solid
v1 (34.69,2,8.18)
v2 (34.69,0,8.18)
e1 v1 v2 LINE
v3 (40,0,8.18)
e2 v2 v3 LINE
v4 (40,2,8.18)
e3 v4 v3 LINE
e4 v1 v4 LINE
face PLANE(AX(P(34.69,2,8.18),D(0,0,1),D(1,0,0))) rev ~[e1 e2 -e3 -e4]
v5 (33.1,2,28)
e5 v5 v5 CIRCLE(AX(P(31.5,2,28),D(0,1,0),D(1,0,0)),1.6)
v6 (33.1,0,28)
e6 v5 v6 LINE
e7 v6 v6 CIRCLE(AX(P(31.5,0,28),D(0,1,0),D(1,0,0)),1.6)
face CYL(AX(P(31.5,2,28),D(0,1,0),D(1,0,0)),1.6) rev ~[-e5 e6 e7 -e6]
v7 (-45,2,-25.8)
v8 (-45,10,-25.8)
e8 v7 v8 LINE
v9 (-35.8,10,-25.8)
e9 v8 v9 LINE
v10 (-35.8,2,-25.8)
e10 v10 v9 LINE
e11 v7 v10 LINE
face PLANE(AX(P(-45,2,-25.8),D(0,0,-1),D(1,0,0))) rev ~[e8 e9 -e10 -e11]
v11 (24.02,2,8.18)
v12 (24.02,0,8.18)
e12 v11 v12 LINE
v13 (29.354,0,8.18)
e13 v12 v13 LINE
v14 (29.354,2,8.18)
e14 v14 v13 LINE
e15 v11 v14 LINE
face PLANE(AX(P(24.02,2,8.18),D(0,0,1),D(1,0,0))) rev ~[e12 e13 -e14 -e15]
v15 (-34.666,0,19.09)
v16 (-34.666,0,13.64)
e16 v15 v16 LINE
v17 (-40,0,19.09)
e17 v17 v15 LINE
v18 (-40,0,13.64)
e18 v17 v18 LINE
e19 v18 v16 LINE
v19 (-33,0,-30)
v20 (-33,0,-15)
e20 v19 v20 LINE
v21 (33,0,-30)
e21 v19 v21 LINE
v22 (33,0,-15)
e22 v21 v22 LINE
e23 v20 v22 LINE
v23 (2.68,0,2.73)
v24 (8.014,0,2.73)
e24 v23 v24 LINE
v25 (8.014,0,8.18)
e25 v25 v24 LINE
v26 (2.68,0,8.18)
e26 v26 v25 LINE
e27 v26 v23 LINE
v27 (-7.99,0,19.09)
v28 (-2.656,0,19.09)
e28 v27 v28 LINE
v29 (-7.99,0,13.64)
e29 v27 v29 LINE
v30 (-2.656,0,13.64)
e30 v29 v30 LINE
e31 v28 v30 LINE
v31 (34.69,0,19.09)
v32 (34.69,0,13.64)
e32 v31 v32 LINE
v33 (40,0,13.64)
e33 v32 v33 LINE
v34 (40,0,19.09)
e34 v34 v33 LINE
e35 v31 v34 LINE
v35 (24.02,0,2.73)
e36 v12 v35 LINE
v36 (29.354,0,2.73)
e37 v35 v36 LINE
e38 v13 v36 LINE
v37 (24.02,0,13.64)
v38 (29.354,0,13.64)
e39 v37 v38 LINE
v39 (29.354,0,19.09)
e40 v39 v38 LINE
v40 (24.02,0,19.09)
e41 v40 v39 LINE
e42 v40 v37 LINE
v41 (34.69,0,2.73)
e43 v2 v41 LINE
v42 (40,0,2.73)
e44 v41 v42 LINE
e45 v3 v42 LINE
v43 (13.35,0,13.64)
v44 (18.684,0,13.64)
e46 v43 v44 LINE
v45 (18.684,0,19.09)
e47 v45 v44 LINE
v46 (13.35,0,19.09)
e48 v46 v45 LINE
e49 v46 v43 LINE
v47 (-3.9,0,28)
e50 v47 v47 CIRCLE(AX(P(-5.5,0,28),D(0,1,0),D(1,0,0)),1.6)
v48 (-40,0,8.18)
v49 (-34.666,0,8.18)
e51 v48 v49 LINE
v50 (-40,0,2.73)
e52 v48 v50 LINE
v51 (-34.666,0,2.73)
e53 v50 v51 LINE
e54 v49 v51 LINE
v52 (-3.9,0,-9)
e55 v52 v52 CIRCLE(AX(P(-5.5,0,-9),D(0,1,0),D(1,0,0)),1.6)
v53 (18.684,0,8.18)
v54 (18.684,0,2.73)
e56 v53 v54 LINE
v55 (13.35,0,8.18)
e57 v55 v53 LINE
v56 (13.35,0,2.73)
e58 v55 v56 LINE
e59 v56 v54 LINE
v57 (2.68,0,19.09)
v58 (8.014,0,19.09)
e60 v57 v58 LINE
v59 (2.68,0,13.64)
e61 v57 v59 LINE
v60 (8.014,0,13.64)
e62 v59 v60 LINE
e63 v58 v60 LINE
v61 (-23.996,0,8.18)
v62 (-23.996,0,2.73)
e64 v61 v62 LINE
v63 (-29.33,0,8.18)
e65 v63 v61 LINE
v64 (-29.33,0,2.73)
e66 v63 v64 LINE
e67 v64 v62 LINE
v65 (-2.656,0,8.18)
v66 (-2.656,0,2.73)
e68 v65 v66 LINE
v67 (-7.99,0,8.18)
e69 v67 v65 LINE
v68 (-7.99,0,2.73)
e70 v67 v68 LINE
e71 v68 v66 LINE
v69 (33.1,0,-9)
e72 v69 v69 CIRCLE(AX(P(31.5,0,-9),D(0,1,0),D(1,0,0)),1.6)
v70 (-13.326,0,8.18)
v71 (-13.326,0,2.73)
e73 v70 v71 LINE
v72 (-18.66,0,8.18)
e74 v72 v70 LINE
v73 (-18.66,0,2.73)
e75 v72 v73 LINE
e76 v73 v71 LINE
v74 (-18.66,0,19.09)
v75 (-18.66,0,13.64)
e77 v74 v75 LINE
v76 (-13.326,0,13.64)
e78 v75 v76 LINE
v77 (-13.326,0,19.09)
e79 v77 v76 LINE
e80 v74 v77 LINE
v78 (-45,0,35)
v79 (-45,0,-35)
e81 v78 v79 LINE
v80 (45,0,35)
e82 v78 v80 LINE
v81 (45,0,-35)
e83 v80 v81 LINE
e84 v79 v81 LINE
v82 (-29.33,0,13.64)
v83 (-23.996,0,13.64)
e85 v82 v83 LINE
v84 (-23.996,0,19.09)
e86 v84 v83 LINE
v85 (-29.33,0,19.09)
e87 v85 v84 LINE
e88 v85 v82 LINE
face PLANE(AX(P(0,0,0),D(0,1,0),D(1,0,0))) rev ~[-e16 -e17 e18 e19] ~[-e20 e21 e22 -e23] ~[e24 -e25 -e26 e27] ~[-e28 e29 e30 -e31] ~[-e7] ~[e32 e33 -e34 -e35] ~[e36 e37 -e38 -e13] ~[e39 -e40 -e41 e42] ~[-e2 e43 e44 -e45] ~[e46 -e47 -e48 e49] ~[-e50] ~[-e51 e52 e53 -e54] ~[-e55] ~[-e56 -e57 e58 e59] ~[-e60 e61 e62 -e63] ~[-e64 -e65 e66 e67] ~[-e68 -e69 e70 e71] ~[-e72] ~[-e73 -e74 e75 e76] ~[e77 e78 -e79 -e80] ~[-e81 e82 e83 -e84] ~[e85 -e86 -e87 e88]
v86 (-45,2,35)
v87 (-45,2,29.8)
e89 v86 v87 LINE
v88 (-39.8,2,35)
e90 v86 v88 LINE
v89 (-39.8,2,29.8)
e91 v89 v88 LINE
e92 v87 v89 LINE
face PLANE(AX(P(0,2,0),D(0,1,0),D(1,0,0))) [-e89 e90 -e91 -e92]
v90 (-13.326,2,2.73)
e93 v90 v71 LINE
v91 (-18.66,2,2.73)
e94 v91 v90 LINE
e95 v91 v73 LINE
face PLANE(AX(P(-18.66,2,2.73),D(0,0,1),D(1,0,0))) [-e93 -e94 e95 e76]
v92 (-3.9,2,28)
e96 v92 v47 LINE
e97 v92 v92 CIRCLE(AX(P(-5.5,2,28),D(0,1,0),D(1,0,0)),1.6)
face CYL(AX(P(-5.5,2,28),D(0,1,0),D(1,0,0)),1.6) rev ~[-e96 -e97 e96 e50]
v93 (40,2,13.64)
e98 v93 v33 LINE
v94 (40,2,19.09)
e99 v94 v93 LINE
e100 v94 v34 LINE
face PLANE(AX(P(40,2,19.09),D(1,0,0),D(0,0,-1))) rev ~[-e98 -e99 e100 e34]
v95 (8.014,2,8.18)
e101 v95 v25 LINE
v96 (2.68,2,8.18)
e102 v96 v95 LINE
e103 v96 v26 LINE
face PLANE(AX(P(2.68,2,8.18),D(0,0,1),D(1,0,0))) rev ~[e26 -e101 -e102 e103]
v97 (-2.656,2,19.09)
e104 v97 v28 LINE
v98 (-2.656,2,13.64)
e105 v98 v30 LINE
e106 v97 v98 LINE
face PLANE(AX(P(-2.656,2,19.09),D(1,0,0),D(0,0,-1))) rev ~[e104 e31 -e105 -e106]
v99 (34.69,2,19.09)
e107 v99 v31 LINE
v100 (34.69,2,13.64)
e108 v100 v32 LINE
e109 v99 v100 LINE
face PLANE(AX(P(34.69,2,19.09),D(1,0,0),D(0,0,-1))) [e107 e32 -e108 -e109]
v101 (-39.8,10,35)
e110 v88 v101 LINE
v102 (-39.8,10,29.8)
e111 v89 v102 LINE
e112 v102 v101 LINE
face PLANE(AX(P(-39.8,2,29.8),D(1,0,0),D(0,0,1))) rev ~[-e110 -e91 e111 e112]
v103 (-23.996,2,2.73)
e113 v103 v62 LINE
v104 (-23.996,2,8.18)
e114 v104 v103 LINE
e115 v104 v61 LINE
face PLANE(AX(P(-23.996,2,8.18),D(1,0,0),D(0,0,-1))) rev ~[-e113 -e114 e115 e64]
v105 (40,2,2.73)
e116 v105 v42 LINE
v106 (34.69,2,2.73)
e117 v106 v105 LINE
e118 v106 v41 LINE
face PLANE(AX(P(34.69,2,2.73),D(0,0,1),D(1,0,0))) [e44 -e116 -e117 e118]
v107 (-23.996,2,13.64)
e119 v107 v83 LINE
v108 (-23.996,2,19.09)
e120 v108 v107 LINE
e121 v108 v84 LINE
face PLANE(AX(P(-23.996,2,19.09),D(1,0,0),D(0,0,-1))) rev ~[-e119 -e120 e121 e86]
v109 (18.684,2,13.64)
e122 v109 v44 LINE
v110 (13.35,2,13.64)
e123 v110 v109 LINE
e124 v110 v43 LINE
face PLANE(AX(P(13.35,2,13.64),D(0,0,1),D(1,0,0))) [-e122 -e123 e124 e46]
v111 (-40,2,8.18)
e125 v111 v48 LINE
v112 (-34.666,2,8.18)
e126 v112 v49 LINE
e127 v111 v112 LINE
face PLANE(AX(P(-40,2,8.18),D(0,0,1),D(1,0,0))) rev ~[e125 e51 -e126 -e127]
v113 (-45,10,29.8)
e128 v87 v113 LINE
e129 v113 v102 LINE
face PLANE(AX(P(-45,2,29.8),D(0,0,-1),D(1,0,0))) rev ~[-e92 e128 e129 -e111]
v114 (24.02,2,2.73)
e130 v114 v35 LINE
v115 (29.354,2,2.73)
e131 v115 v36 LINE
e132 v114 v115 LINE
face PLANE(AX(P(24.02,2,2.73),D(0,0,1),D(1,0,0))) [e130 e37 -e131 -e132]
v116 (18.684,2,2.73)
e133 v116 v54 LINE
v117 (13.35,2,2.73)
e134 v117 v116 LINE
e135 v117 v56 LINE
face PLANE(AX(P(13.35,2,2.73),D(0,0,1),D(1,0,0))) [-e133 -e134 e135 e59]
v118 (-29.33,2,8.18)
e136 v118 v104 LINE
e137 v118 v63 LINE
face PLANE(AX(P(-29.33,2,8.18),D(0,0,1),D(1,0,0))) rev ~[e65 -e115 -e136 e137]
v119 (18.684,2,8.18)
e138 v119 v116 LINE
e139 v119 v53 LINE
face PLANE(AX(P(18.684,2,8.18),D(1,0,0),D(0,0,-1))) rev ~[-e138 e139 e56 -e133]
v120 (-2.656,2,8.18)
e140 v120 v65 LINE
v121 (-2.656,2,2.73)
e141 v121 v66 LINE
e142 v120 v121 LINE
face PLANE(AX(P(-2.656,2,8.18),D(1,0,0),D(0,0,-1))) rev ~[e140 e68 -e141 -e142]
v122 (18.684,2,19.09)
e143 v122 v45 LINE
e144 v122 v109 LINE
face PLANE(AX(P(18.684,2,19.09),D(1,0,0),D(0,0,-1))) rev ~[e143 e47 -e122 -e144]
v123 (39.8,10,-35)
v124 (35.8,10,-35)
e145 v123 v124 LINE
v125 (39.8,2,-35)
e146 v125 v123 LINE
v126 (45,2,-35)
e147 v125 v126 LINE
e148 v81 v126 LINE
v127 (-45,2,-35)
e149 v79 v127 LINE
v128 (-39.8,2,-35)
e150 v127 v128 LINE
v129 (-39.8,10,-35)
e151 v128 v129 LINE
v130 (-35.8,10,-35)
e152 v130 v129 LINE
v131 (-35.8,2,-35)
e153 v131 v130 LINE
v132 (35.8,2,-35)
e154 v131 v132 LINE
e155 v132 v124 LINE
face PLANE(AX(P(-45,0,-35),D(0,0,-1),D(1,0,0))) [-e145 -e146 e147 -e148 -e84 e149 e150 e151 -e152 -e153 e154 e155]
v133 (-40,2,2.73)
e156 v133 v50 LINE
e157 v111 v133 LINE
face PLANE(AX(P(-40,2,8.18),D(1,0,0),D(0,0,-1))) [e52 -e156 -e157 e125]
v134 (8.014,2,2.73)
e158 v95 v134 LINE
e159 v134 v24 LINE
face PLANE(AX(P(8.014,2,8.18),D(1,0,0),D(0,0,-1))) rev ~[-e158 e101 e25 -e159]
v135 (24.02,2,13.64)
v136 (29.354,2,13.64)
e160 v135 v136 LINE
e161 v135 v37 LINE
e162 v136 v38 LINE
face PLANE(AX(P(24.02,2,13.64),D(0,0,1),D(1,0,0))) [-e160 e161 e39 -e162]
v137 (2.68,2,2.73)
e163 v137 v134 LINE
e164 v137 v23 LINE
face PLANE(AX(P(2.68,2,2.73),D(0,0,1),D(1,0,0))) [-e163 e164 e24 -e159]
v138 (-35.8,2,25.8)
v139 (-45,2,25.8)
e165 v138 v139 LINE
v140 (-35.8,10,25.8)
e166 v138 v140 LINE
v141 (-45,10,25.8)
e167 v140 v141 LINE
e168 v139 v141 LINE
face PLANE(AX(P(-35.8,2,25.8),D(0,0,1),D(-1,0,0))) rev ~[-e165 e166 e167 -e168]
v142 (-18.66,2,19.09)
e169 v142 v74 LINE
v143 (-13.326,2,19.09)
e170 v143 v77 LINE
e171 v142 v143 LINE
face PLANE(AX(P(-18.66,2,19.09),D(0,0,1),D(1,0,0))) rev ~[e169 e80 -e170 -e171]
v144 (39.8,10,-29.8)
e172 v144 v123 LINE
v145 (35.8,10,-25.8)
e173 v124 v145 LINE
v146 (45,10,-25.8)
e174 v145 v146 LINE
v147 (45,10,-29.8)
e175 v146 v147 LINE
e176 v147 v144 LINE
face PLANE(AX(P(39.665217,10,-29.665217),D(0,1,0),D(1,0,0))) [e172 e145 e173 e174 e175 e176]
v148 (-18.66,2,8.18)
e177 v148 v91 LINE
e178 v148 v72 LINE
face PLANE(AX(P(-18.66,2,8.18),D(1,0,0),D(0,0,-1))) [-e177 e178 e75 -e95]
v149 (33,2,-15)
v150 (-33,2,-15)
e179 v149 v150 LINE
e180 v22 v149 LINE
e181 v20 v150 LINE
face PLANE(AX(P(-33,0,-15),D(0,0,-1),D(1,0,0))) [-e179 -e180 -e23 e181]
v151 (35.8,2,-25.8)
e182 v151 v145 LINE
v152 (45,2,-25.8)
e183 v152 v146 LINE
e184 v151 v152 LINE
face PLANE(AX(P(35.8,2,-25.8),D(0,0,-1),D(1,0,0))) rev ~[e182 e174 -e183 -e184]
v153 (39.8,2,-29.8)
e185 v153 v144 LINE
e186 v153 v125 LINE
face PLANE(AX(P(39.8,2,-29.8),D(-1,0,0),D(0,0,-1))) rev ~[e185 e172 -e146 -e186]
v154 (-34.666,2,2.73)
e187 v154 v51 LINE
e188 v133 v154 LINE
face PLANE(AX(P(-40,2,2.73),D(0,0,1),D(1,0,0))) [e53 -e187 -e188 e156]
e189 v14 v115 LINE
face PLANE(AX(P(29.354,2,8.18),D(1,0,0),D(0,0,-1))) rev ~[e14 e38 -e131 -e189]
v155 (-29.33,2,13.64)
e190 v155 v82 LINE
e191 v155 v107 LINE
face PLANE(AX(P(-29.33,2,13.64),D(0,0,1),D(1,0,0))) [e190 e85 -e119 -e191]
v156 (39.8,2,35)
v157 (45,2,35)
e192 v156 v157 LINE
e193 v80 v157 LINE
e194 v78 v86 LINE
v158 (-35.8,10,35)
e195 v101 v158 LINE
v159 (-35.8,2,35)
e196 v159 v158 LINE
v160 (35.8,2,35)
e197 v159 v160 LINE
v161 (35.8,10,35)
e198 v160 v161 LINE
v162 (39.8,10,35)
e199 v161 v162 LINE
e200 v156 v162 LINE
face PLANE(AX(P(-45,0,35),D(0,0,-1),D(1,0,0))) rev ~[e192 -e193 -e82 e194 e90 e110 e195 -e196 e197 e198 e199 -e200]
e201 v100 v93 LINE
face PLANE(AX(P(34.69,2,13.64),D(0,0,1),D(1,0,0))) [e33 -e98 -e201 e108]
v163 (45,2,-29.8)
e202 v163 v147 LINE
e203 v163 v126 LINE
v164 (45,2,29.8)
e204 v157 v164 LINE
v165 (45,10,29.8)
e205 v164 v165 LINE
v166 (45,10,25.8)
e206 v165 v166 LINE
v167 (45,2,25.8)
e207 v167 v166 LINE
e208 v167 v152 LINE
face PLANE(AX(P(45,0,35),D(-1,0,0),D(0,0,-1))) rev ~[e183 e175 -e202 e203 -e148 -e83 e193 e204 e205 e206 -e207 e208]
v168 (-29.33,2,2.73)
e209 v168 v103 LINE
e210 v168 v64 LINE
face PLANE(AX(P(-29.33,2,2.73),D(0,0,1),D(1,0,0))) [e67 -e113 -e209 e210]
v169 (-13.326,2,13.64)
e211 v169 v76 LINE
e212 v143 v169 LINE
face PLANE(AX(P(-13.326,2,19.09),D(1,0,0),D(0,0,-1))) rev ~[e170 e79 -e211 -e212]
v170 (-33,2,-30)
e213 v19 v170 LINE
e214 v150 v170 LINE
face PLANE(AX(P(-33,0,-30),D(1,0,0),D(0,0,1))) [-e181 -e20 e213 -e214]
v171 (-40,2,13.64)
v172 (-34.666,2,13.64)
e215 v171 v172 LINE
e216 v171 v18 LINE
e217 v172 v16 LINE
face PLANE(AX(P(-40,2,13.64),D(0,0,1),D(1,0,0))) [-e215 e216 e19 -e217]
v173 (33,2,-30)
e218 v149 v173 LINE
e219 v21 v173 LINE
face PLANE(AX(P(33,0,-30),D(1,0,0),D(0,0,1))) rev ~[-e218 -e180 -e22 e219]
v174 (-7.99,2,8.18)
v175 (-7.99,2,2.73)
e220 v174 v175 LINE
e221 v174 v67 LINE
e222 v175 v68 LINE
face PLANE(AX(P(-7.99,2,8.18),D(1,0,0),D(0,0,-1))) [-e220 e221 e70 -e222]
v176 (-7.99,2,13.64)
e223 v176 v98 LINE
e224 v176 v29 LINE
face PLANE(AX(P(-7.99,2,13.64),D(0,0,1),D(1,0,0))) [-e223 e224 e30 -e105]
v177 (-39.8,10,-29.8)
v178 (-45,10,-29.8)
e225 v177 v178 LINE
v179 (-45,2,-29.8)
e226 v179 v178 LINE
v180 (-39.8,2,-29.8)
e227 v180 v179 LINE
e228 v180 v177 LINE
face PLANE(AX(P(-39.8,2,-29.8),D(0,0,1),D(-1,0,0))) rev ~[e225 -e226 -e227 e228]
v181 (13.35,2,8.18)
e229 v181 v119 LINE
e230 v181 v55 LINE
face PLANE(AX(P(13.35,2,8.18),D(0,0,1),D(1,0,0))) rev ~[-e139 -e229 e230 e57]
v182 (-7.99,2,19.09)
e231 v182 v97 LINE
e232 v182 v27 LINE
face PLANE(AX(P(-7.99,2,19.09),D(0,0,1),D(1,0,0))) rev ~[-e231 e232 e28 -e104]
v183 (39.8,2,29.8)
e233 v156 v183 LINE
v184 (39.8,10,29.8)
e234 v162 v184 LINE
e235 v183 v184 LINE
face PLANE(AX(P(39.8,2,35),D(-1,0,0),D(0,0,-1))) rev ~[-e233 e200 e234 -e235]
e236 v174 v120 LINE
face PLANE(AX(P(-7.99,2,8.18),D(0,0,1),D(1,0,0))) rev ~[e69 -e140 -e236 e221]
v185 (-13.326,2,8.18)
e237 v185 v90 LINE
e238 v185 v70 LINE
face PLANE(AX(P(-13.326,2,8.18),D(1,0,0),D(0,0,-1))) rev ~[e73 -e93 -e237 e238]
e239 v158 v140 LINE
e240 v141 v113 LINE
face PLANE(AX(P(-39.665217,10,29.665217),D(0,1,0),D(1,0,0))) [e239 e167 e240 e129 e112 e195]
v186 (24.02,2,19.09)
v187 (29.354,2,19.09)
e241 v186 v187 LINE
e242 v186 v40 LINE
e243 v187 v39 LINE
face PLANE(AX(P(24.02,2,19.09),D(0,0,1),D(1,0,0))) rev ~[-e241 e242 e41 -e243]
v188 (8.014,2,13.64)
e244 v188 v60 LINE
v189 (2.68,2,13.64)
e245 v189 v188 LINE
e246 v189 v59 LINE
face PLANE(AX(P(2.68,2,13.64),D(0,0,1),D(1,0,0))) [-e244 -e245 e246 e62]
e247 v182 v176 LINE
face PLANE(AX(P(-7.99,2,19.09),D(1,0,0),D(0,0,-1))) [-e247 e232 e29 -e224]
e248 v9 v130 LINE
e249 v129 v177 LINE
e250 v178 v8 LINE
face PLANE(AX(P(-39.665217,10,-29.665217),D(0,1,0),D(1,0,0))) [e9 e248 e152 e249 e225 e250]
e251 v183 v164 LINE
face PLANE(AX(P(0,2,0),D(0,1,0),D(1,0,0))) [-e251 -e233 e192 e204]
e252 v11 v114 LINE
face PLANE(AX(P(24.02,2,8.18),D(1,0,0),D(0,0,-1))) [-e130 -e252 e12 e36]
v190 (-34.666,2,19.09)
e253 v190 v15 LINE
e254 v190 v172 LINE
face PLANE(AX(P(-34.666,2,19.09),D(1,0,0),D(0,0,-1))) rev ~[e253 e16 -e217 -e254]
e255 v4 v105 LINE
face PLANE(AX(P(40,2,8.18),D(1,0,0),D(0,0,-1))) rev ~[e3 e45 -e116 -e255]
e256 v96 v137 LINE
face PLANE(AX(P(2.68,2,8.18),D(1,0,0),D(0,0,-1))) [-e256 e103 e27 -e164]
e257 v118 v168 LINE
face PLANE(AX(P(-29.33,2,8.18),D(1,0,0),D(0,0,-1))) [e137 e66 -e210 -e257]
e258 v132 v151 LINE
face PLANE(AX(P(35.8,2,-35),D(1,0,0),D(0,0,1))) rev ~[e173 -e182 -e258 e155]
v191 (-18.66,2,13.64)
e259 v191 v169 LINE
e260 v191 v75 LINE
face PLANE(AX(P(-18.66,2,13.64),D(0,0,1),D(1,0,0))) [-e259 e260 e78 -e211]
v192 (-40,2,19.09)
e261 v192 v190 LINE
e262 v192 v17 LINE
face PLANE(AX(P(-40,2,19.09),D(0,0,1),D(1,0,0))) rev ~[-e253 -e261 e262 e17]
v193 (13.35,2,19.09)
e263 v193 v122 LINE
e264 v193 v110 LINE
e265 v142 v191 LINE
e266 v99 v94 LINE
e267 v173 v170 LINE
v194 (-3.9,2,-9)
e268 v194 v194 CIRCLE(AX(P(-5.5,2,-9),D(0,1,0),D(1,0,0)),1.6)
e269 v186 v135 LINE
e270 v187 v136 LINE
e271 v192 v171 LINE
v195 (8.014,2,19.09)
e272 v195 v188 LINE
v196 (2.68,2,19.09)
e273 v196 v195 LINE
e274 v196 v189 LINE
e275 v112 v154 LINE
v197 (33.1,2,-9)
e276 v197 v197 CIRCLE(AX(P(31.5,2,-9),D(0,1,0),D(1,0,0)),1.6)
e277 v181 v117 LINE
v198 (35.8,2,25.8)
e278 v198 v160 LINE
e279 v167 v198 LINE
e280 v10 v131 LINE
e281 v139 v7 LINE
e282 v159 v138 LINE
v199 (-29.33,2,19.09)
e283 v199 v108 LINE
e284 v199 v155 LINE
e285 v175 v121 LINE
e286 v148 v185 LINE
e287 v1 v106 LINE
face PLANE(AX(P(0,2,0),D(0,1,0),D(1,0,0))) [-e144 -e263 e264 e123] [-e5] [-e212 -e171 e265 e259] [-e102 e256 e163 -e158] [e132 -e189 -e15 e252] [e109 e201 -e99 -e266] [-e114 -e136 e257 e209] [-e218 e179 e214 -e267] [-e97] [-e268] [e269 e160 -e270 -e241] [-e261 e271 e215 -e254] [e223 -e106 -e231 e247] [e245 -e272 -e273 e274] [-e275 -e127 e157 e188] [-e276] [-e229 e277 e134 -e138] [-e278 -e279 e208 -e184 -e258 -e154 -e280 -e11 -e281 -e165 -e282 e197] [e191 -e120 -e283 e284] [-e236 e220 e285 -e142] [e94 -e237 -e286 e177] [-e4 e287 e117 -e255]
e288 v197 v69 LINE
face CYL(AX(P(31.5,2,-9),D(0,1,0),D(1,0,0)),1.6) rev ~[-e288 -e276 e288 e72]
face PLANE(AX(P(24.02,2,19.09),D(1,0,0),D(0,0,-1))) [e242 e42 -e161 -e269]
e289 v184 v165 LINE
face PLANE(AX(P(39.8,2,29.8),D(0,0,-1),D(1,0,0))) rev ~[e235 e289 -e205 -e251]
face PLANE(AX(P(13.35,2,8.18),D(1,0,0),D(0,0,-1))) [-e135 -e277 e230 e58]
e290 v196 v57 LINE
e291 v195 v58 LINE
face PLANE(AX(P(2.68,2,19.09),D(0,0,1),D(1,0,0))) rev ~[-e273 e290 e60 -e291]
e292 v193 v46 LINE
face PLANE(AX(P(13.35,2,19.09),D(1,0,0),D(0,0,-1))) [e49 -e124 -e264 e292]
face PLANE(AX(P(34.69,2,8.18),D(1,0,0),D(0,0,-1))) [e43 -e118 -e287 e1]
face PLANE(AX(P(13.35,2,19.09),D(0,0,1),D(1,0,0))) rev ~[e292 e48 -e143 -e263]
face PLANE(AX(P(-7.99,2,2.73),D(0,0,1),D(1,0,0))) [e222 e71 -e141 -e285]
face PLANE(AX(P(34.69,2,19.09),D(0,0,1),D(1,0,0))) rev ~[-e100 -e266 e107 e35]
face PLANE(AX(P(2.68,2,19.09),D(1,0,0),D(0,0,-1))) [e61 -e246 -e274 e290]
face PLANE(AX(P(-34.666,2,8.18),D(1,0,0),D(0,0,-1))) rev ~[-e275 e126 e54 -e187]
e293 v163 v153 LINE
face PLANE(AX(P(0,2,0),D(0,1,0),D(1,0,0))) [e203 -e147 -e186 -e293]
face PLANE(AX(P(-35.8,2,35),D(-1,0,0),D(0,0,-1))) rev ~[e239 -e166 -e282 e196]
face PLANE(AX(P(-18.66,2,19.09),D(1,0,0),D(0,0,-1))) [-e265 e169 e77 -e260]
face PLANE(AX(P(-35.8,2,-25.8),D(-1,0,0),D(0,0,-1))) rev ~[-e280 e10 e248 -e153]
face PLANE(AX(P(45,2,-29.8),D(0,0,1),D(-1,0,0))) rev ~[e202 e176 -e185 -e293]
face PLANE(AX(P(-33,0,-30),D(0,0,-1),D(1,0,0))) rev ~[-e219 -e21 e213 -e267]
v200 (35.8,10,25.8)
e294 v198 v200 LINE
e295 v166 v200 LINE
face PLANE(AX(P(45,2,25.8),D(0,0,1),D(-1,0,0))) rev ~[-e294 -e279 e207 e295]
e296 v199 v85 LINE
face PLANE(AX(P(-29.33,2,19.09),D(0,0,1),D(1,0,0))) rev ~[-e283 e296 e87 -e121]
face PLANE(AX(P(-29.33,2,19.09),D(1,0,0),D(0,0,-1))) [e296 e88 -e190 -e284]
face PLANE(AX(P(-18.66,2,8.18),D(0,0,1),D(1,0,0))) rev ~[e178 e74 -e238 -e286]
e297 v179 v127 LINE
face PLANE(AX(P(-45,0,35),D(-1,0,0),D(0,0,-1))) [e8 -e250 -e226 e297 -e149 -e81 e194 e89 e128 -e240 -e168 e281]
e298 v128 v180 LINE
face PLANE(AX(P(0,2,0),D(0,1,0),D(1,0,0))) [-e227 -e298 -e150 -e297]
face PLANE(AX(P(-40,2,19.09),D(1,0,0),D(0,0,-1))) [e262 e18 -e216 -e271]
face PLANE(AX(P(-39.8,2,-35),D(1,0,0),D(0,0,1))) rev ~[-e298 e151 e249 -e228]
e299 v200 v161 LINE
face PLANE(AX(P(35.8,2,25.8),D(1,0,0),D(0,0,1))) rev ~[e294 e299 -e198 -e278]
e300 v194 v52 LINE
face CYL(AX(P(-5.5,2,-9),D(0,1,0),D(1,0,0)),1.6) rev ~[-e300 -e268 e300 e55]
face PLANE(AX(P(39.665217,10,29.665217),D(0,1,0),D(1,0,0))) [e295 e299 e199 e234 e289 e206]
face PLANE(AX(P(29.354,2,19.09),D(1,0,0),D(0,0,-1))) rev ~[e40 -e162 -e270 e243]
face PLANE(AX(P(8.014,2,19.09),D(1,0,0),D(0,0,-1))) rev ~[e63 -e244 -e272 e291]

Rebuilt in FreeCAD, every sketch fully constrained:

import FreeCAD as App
import Part
import Sketcher

V = App.Vector

doc = App.newDocument("Part")
body = doc.addObject("PartDesign::Body", "Body")

sketch1 = doc.addObject("Sketcher::SketchObject", "Sketch")
body.addObject(sketch1)
sketch1.AttachmentSupport = (doc.XZ_Plane, [""])
sketch1.MapMode = "FlatFace"
sketch1.addGeometry(Part.LineSegment(V(-45, -35, 0), V(-45, 35, 0)), False)
sketch1.addGeometry(Part.LineSegment(V(-45, 35, 0), V(45, 35, 0)), False)
sketch1.addGeometry(Part.LineSegment(V(45, 35, 0), V(45, -35, 0)), False)
sketch1.addGeometry(Part.LineSegment(V(45, -35, 0), V(-45, -35, 0)), False)
sketch1.addConstraint(Sketcher.Constraint("Coincident", 0, 2, 1, 1))
sketch1.addConstraint(Sketcher.Constraint("Coincident", 1, 2, 2, 1))
sketch1.addConstraint(Sketcher.Constraint("Coincident", 2, 2, 3, 1))
sketch1.addConstraint(Sketcher.Constraint("Coincident", 3, 2, 0, 1))
sketch1.addConstraint(Sketcher.Constraint("Vertical", 0))
sketch1.addConstraint(Sketcher.Constraint("Horizontal", 1))
sketch1.addConstraint(Sketcher.Constraint("Vertical", 2))
sketch1.addConstraint(Sketcher.Constraint("Horizontal", 3))
sketch1.addConstraint(Sketcher.Constraint("Symmetric", 0, 2, 2, 2, -1, 1))
sketch1.addConstraint(Sketcher.Constraint("DistanceX", 1, 1, 1, 2, 90.0))
sketch1.addConstraint(Sketcher.Constraint("DistanceY", 0, 1, 0, 2, 70.0))
pad1 = doc.addObject("PartDesign::Pad", "Pad")
body.addObject(pad1)
pad1.Profile = sketch1
pad1.Length = 2
pad1.Reversed = True

sketch2 = doc.addObject("Sketcher::SketchObject", "Sketch001")
body.addObject(sketch2)
sketch2.AttachmentSupport = (doc.XZ_Plane, [""])
sketch2.MapMode = "FlatFace"
sketch2.AttachmentOffset = App.Placement(V(0, 0, -2), App.Rotation())
sketch2.addGeometry(Part.LineSegment(V(-35.8, 25.8, 0), V(-45, 25.8, 0)), False)
sketch2.addGeometry(Part.LineSegment(V(-45, 25.8, 0), V(-45, 29.8, 0)), False)
sketch2.addGeometry(Part.LineSegment(V(-45, 29.8, 0), V(-39.8, 29.8, 0)), False)
sketch2.addGeometry(Part.LineSegment(V(-39.8, 29.8, 0), V(-39.8, 35, 0)), False)
sketch2.addGeometry(Part.LineSegment(V(-39.8, 35, 0), V(-35.8, 35, 0)), False)
sketch2.addGeometry(Part.LineSegment(V(-35.8, 35, 0), V(-35.8, 25.8, 0)), False)
sketch2.addGeometry(Part.LineSegment(V(45, 29.8, 0), V(45, 25.8, 0)), False)
sketch2.addGeometry(Part.LineSegment(V(45, 25.8, 0), V(35.8, 25.8, 0)), False)
sketch2.addGeometry(Part.LineSegment(V(35.8, 25.8, 0), V(35.8, 35, 0)), False)
sketch2.addGeometry(Part.LineSegment(V(35.8, 35, 0), V(39.8, 35, 0)), False)
sketch2.addGeometry(Part.LineSegment(V(39.8, 35, 0), V(39.8, 29.8, 0)), False)
sketch2.addGeometry(Part.LineSegment(V(39.8, 29.8, 0), V(45, 29.8, 0)), False)
sketch2.addGeometry(Part.LineSegment(V(39.8, -35, 0), V(35.8, -35, 0)), False)
sketch2.addGeometry(Part.LineSegment(V(35.8, -35, 0), V(35.8, -25.8, 0)), False)
sketch2.addGeometry(Part.LineSegment(V(35.8, -25.8, 0), V(45, -25.8, 0)), False)
sketch2.addGeometry(Part.LineSegment(V(45, -25.8, 0), V(45, -29.8, 0)), False)
sketch2.addGeometry(Part.LineSegment(V(45, -29.8, 0), V(39.8, -29.8, 0)), False)
sketch2.addGeometry(Part.LineSegment(V(39.8, -29.8, 0), V(39.8, -35, 0)), False)
sketch2.addGeometry(Part.LineSegment(V(-35.8, -35, 0), V(-39.8, -35, 0)), False)
sketch2.addGeometry(Part.LineSegment(V(-39.8, -35, 0), V(-39.8, -29.8, 0)), False)
sketch2.addGeometry(Part.LineSegment(V(-39.8, -29.8, 0), V(-45, -29.8, 0)), False)
sketch2.addGeometry(Part.LineSegment(V(-45, -29.8, 0), V(-45, -25.8, 0)), False)
sketch2.addGeometry(Part.LineSegment(V(-45, -25.8, 0), V(-35.8, -25.8, 0)), False)
sketch2.addGeometry(Part.LineSegment(V(-35.8, -25.8, 0), V(-35.8, -35, 0)), False)
sketch2.addConstraint(Sketcher.Constraint("Coincident", 0, 2, 1, 1))
sketch2.addConstraint(Sketcher.Constraint("Coincident", 1, 2, 2, 1))
sketch2.addConstraint(Sketcher.Constraint("Coincident", 2, 2, 3, 1))
sketch2.addConstraint(Sketcher.Constraint("Coincident", 3, 2, 4, 1))
sketch2.addConstraint(Sketcher.Constraint("Coincident", 4, 2, 5, 1))
sketch2.addConstraint(Sketcher.Constraint("Coincident", 5, 2, 0, 1))
sketch2.addConstraint(Sketcher.Constraint("Coincident", 6, 2, 7, 1))
sketch2.addConstraint(Sketcher.Constraint("Coincident", 7, 2, 8, 1))
sketch2.addConstraint(Sketcher.Constraint("Coincident", 8, 2, 9, 1))
sketch2.addConstraint(Sketcher.Constraint("Coincident", 9, 2, 10, 1))
sketch2.addConstraint(Sketcher.Constraint("Coincident", 10, 2, 11, 1))
sketch2.addConstraint(Sketcher.Constraint("Coincident", 11, 2, 6, 1))
sketch2.addConstraint(Sketcher.Constraint("Coincident", 12, 2, 13, 1))
sketch2.addConstraint(Sketcher.Constraint("Coincident", 13, 2, 14, 1))
sketch2.addConstraint(Sketcher.Constraint("Coincident", 14, 2, 15, 1))
sketch2.addConstraint(Sketcher.Constraint("Coincident", 15, 2, 16, 1))
sketch2.addConstraint(Sketcher.Constraint("Coincident", 16, 2, 17, 1))
sketch2.addConstraint(Sketcher.Constraint("Coincident", 17, 2, 12, 1))
sketch2.addConstraint(Sketcher.Constraint("Coincident", 18, 2, 19, 1))
sketch2.addConstraint(Sketcher.Constraint("Coincident", 19, 2, 20, 1))
sketch2.addConstraint(Sketcher.Constraint("Coincident", 20, 2, 21, 1))
sketch2.addConstraint(Sketcher.Constraint("Coincident", 21, 2, 22, 1))
sketch2.addConstraint(Sketcher.Constraint("Coincident", 22, 2, 23, 1))
sketch2.addConstraint(Sketcher.Constraint("Coincident", 23, 2, 18, 1))
sketch2.addConstraint(Sketcher.Constraint("Horizontal", 0))
sketch2.addConstraint(Sketcher.Constraint("Vertical", 1))
sketch2.addConstraint(Sketcher.Constraint("Horizontal", 2))
sketch2.addConstraint(Sketcher.Constraint("Vertical", 3))
sketch2.addConstraint(Sketcher.Constraint("Horizontal", 4))
sketch2.addConstraint(Sketcher.Constraint("Vertical", 5))
sketch2.addConstraint(Sketcher.Constraint("Vertical", 6))
sketch2.addConstraint(Sketcher.Constraint("Horizontal", 7))
sketch2.addConstraint(Sketcher.Constraint("Vertical", 8))
sketch2.addConstraint(Sketcher.Constraint("Horizontal", 9))
sketch2.addConstraint(Sketcher.Constraint("Vertical", 10))
sketch2.addConstraint(Sketcher.Constraint("Horizontal", 11))
sketch2.addConstraint(Sketcher.Constraint("Horizontal", 12))
sketch2.addConstraint(Sketcher.Constraint("Vertical", 13))
sketch2.addConstraint(Sketcher.Constraint("Horizontal", 14))
sketch2.addConstraint(Sketcher.Constraint("Vertical", 15))
sketch2.addConstraint(Sketcher.Constraint("Horizontal", 16))
sketch2.addConstraint(Sketcher.Constraint("Vertical", 17))
sketch2.addConstraint(Sketcher.Constraint("Horizontal", 18))
sketch2.addConstraint(Sketcher.Constraint("Vertical", 19))
sketch2.addConstraint(Sketcher.Constraint("Horizontal", 20))
sketch2.addConstraint(Sketcher.Constraint("Vertical", 21))
sketch2.addConstraint(Sketcher.Constraint("Horizontal", 22))
sketch2.addConstraint(Sketcher.Constraint("Vertical", 23))
sketch2.addConstraint(Sketcher.Constraint("Symmetric", 4, 2, 12, 2, -1, 1))
sketch2.addConstraint(Sketcher.Constraint("Symmetric", 0, 2, 14, 2, -1, 1))
sketch2.addConstraint(Sketcher.Constraint("Symmetric", 2, 2, 16, 2, -1, 1))
sketch2.addConstraint(Sketcher.Constraint("Symmetric", 9, 2, 18, 2, -1, 1))
sketch2.addConstraint(Sketcher.Constraint("Symmetric", 11, 2, 20, 2, -1, 1))
sketch2.addConstraint(Sketcher.Constraint("Symmetric", 7, 2, 22, 2, -1, 1))
sketch2.addConstraint(Sketcher.Constraint("Symmetric", 0, 2, 6, 2, -2))
sketch2.addConstraint(Sketcher.Constraint("Symmetric", 4, 2, 8, 2, -2))
sketch2.addConstraint(Sketcher.Constraint("Symmetric", 2, 2, 10, 2, -2))
sketch2.addConstraint(Sketcher.Constraint("Equal", 18, 1))
sketch2.addConstraint(Sketcher.Constraint("Equal", 20, 3))
sketch2.addConstraint(Sketcher.Constraint("DistanceX", 4, 1, 4, 2, 4.0))
sketch2.addConstraint(Sketcher.Constraint("DistanceX", 0, 2, 0, 1, 9.2))
sketch2.addConstraint(Sketcher.Constraint("DistanceX", 0, 2, -1, 1, 45.0))
sketch2.addConstraint(Sketcher.Constraint("DistanceY", -1, 1, 3, 2, 35.0))
pad2 = doc.addObject("PartDesign::Pad", "Pad001")
body.addObject(pad2)
pad2.Profile = sketch2
pad2.Length = 8
pad2.Reversed = True

sketch3 = doc.addObject("Sketcher::SketchObject", "Sketch002")
body.addObject(sketch3)
sketch3.AttachmentSupport = (doc.XZ_Plane, [""])
sketch3.MapMode = "FlatFace"
sketch3.addGeometry(Part.LineSegment(V(-33, -15, 0), V(-33, -30, 0)), False)
sketch3.addGeometry(Part.LineSegment(V(-33, -30, 0), V(33, -30, 0)), False)
sketch3.addGeometry(Part.LineSegment(V(33, -30, 0), V(33, -15, 0)), False)
sketch3.addGeometry(Part.LineSegment(V(33, -15, 0), V(-33, -15, 0)), False)
sketch3.addConstraint(Sketcher.Constraint("Coincident", 0, 2, 1, 1))
sketch3.addConstraint(Sketcher.Constraint("Coincident", 1, 2, 2, 1))
sketch3.addConstraint(Sketcher.Constraint("Coincident", 2, 2, 3, 1))
sketch3.addConstraint(Sketcher.Constraint("Coincident", 3, 2, 0, 1))
sketch3.addConstraint(Sketcher.Constraint("Vertical", 0))
sketch3.addConstraint(Sketcher.Constraint("Horizontal", 1))
sketch3.addConstraint(Sketcher.Constraint("Vertical", 2))
sketch3.addConstraint(Sketcher.Constraint("Horizontal", 3))
sketch3.addConstraint(Sketcher.Constraint("DistanceX", 1, 1, 1, 2, 66.0))
sketch3.addConstraint(Sketcher.Constraint("DistanceY", 0, 2, 0, 1, 15.0))
sketch3.addConstraint(Sketcher.Constraint("DistanceX", 0, 2, -1, 1, 33.0))
sketch3.addConstraint(Sketcher.Constraint("DistanceY", 0, 2, -1, 1, 30.0))
pocket1 = doc.addObject("PartDesign::Pocket", "Pocket")
body.addObject(pocket1)
pocket1.Profile = sketch3
pocket1.Length = 3

sketch4 = doc.addObject("Sketcher::SketchObject", "Sketch003")
body.addObject(sketch4)
sketch4.AttachmentSupport = (doc.XZ_Plane, [""])
sketch4.MapMode = "FlatFace"
sketch4.AttachmentOffset = App.Placement(V(0, 0, -2), App.Rotation())
sketch4.addGeometry(Part.LineSegment(V(-40, 13.64, 0), V(-40, 19.09, 0)), False)
sketch4.addGeometry(Part.LineSegment(V(-40, 19.09, 0), V(-34.666, 19.09, 0)), False)
sketch4.addGeometry(Part.LineSegment(V(-34.666, 19.09, 0), V(-34.666, 13.64, 0)), False)
sketch4.addGeometry(Part.LineSegment(V(-34.666, 13.64, 0), V(-40, 13.64, 0)), False)
sketch4.addGeometry(Part.LineSegment(V(-40, 2.73, 0), V(-40, 8.18, 0)), False)
sketch4.addGeometry(Part.LineSegment(V(-40, 8.18, 0), V(-34.666, 8.18, 0)), False)
sketch4.addGeometry(Part.LineSegment(V(-34.666, 8.18, 0), V(-34.666, 2.73, 0)), False)
sketch4.addGeometry(Part.LineSegment(V(-34.666, 2.73, 0), V(-40, 2.73, 0)), False)
sketch4.addGeometry(Part.LineSegment(V(-29.33, 13.64, 0), V(-29.33, 19.09, 0)), False)
sketch4.addGeometry(Part.LineSegment(V(-29.33, 19.09, 0), V(-23.996, 19.09, 0)), False)
sketch4.addGeometry(Part.LineSegment(V(-23.996, 19.09, 0), V(-23.996, 13.64, 0)), False)
sketch4.addGeometry(Part.LineSegment(V(-23.996, 13.64, 0), V(-29.33, 13.64, 0)), False)
sketch4.addGeometry(Part.LineSegment(V(-29.33, 2.73, 0), V(-29.33, 8.18, 0)), False)
sketch4.addGeometry(Part.LineSegment(V(-29.33, 8.18, 0), V(-23.996, 8.18, 0)), False)
sketch4.addGeometry(Part.LineSegment(V(-23.996, 8.18, 0), V(-23.996, 2.73, 0)), False)
sketch4.addGeometry(Part.LineSegment(V(-23.996, 2.73, 0), V(-29.33, 2.73, 0)), False)
sketch4.addGeometry(Part.LineSegment(V(-18.66, 13.64, 0), V(-18.66, 19.09, 0)), False)
sketch4.addGeometry(Part.LineSegment(V(-18.66, 19.09, 0), V(-13.326, 19.09, 0)), False)
sketch4.addGeometry(Part.LineSegment(V(-13.326, 19.09, 0), V(-13.326, 13.64, 0)), False)
sketch4.addGeometry(Part.LineSegment(V(-13.326, 13.64, 0), V(-18.66, 13.64, 0)), False)
sketch4.addGeometry(Part.LineSegment(V(-18.66, 2.73, 0), V(-18.66, 8.18, 0)), False)
sketch4.addGeometry(Part.LineSegment(V(-18.66, 8.18, 0), V(-13.326, 8.18, 0)), False)
sketch4.addGeometry(Part.LineSegment(V(-13.326, 8.18, 0), V(-13.326, 2.73, 0)), False)
sketch4.addGeometry(Part.LineSegment(V(-13.326, 2.73, 0), V(-18.66, 2.73, 0)), False)
sketch4.addGeometry(Part.LineSegment(V(-7.99, 13.64, 0), V(-7.99, 19.09, 0)), False)
sketch4.addGeometry(Part.LineSegment(V(-7.99, 19.09, 0), V(-2.656, 19.09, 0)), False)
sketch4.addGeometry(Part.LineSegment(V(-2.656, 19.09, 0), V(-2.656, 13.64, 0)), False)
sketch4.addGeometry(Part.LineSegment(V(-2.656, 13.64, 0), V(-7.99, 13.64, 0)), False)
sketch4.addGeometry(Part.LineSegment(V(-7.99, 2.73, 0), V(-7.99, 8.18, 0)), False)
sketch4.addGeometry(Part.LineSegment(V(-7.99, 8.18, 0), V(-2.656, 8.18, 0)), False)
sketch4.addGeometry(Part.LineSegment(V(-2.656, 8.18, 0), V(-2.656, 2.73, 0)), False)
sketch4.addGeometry(Part.LineSegment(V(-2.656, 2.73, 0), V(-7.99, 2.73, 0)), False)
sketch4.addGeometry(Part.LineSegment(V(2.68, 13.64, 0), V(2.68, 19.09, 0)), False)
sketch4.addGeometry(Part.LineSegment(V(2.68, 19.09, 0), V(8.014, 19.09, 0)), False)
sketch4.addGeometry(Part.LineSegment(V(8.014, 19.09, 0), V(8.014, 13.64, 0)), False)
sketch4.addGeometry(Part.LineSegment(V(8.014, 13.64, 0), V(2.68, 13.64, 0)), False)
sketch4.addGeometry(Part.LineSegment(V(2.68, 2.73, 0), V(2.68, 8.18, 0)), False)
sketch4.addGeometry(Part.LineSegment(V(2.68, 8.18, 0), V(8.014, 8.18, 0)), False)
sketch4.addGeometry(Part.LineSegment(V(8.014, 8.18, 0), V(8.014, 2.73, 0)), False)
sketch4.addGeometry(Part.LineSegment(V(8.014, 2.73, 0), V(2.68, 2.73, 0)), False)
sketch4.addGeometry(Part.LineSegment(V(13.35, 13.64, 0), V(13.35, 19.09, 0)), False)
sketch4.addGeometry(Part.LineSegment(V(13.35, 19.09, 0), V(18.684, 19.09, 0)), False)
sketch4.addGeometry(Part.LineSegment(V(18.684, 19.09, 0), V(18.684, 13.64, 0)), False)
sketch4.addGeometry(Part.LineSegment(V(18.684, 13.64, 0), V(13.35, 13.64, 0)), False)
sketch4.addGeometry(Part.LineSegment(V(13.35, 2.73, 0), V(13.35, 8.18, 0)), False)
sketch4.addGeometry(Part.LineSegment(V(13.35, 8.18, 0), V(18.684, 8.18, 0)), False)
sketch4.addGeometry(Part.LineSegment(V(18.684, 8.18, 0), V(18.684, 2.73, 0)), False)
sketch4.addGeometry(Part.LineSegment(V(18.684, 2.73, 0), V(13.35, 2.73, 0)), False)
sketch4.addGeometry(Part.LineSegment(V(24.02, 13.64, 0), V(24.02, 19.09, 0)), False)
sketch4.addGeometry(Part.LineSegment(V(24.02, 19.09, 0), V(29.354, 19.09, 0)), False)
sketch4.addGeometry(Part.LineSegment(V(29.354, 19.09, 0), V(29.354, 13.64, 0)), False)
sketch4.addGeometry(Part.LineSegment(V(29.354, 13.64, 0), V(24.02, 13.64, 0)), False)
sketch4.addGeometry(Part.LineSegment(V(24.02, 2.73, 0), V(24.02, 8.18, 0)), False)
sketch4.addGeometry(Part.LineSegment(V(24.02, 8.18, 0), V(29.354, 8.18, 0)), False)
sketch4.addGeometry(Part.LineSegment(V(29.354, 8.18, 0), V(29.354, 2.73, 0)), False)
sketch4.addGeometry(Part.LineSegment(V(29.354, 2.73, 0), V(24.02, 2.73, 0)), False)
sketch4.addGeometry(Part.LineSegment(V(34.69, 13.64, 0), V(34.69, 19.09, 0)), False)
sketch4.addGeometry(Part.LineSegment(V(34.69, 19.09, 0), V(40, 19.09, 0)), False)
sketch4.addGeometry(Part.LineSegment(V(40, 19.09, 0), V(40, 13.64, 0)), False)
sketch4.addGeometry(Part.LineSegment(V(40, 13.64, 0), V(34.69, 13.64, 0)), False)
sketch4.addGeometry(Part.LineSegment(V(34.69, 2.73, 0), V(34.69, 8.18, 0)), False)
sketch4.addGeometry(Part.LineSegment(V(34.69, 8.18, 0), V(40, 8.18, 0)), False)
sketch4.addGeometry(Part.LineSegment(V(40, 8.18, 0), V(40, 2.73, 0)), False)
sketch4.addGeometry(Part.LineSegment(V(40, 2.73, 0), V(34.69, 2.73, 0)), False)
sketch4.addConstraint(Sketcher.Constraint("Coincident", 0, 2, 1, 1))
sketch4.addConstraint(Sketcher.Constraint("Coincident", 1, 2, 2, 1))
sketch4.addConstraint(Sketcher.Constraint("Coincident", 2, 2, 3, 1))
sketch4.addConstraint(Sketcher.Constraint("Coincident", 3, 2, 0, 1))
sketch4.addConstraint(Sketcher.Constraint("Coincident", 4, 2, 5, 1))
sketch4.addConstraint(Sketcher.Constraint("Coincident", 5, 2, 6, 1))
sketch4.addConstraint(Sketcher.Constraint("Coincident", 6, 2, 7, 1))
sketch4.addConstraint(Sketcher.Constraint("Coincident", 7, 2, 4, 1))
sketch4.addConstraint(Sketcher.Constraint("Coincident", 8, 2, 9, 1))
sketch4.addConstraint(Sketcher.Constraint("Coincident", 9, 2, 10, 1))
sketch4.addConstraint(Sketcher.Constraint("Coincident", 10, 2, 11, 1))
sketch4.addConstraint(Sketcher.Constraint("Coincident", 11, 2, 8, 1))
sketch4.addConstraint(Sketcher.Constraint("Coincident", 12, 2, 13, 1))
sketch4.addConstraint(Sketcher.Constraint("Coincident", 13, 2, 14, 1))
sketch4.addConstraint(Sketcher.Constraint("Coincident", 14, 2, 15, 1))
sketch4.addConstraint(Sketcher.Constraint("Coincident", 15, 2, 12, 1))
sketch4.addConstraint(Sketcher.Constraint("Coincident", 16, 2, 17, 1))
sketch4.addConstraint(Sketcher.Constraint("Coincident", 17, 2, 18, 1))
sketch4.addConstraint(Sketcher.Constraint("Coincident", 18, 2, 19, 1))
sketch4.addConstraint(Sketcher.Constraint("Coincident", 19, 2, 16, 1))
sketch4.addConstraint(Sketcher.Constraint("Coincident", 20, 2, 21, 1))
sketch4.addConstraint(Sketcher.Constraint("Coincident", 21, 2, 22, 1))
sketch4.addConstraint(Sketcher.Constraint("Coincident", 22, 2, 23, 1))
sketch4.addConstraint(Sketcher.Constraint("Coincident", 23, 2, 20, 1))
sketch4.addConstraint(Sketcher.Constraint("Coincident", 24, 2, 25, 1))
sketch4.addConstraint(Sketcher.Constraint("Coincident", 25, 2, 26, 1))
sketch4.addConstraint(Sketcher.Constraint("Coincident", 26, 2, 27, 1))
sketch4.addConstraint(Sketcher.Constraint("Coincident", 27, 2, 24, 1))
sketch4.addConstraint(Sketcher.Constraint("Coincident", 28, 2, 29, 1))
sketch4.addConstraint(Sketcher.Constraint("Coincident", 29, 2, 30, 1))
sketch4.addConstraint(Sketcher.Constraint("Coincident", 30, 2, 31, 1))
sketch4.addConstraint(Sketcher.Constraint("Coincident", 31, 2, 28, 1))
sketch4.addConstraint(Sketcher.Constraint("Coincident", 32, 2, 33, 1))
sketch4.addConstraint(Sketcher.Constraint("Coincident", 33, 2, 34, 1))
sketch4.addConstraint(Sketcher.Constraint("Coincident", 34, 2, 35, 1))
sketch4.addConstraint(Sketcher.Constraint("Coincident", 35, 2, 32, 1))
sketch4.addConstraint(Sketcher.Constraint("Coincident", 36, 2, 37, 1))
sketch4.addConstraint(Sketcher.Constraint("Coincident", 37, 2, 38, 1))
sketch4.addConstraint(Sketcher.Constraint("Coincident", 38, 2, 39, 1))
sketch4.addConstraint(Sketcher.Constraint("Coincident", 39, 2, 36, 1))
sketch4.addConstraint(Sketcher.Constraint("Coincident", 40, 2, 41, 1))
sketch4.addConstraint(Sketcher.Constraint("Coincident", 41, 2, 42, 1))
sketch4.addConstraint(Sketcher.Constraint("Coincident", 42, 2, 43, 1))
sketch4.addConstraint(Sketcher.Constraint("Coincident", 43, 2, 40, 1))
sketch4.addConstraint(Sketcher.Constraint("Coincident", 44, 2, 45, 1))
sketch4.addConstraint(Sketcher.Constraint("Coincident", 45, 2, 46, 1))
sketch4.addConstraint(Sketcher.Constraint("Coincident", 46, 2, 47, 1))
sketch4.addConstraint(Sketcher.Constraint("Coincident", 47, 2, 44, 1))
sketch4.addConstraint(Sketcher.Constraint("Coincident", 48, 2, 49, 1))
sketch4.addConstraint(Sketcher.Constraint("Coincident", 49, 2, 50, 1))
sketch4.addConstraint(Sketcher.Constraint("Coincident", 50, 2, 51, 1))
sketch4.addConstraint(Sketcher.Constraint("Coincident", 51, 2, 48, 1))
sketch4.addConstraint(Sketcher.Constraint("Coincident", 52, 2, 53, 1))
sketch4.addConstraint(Sketcher.Constraint("Coincident", 53, 2, 54, 1))
sketch4.addConstraint(Sketcher.Constraint("Coincident", 54, 2, 55, 1))
sketch4.addConstraint(Sketcher.Constraint("Coincident", 55, 2, 52, 1))
sketch4.addConstraint(Sketcher.Constraint("Coincident", 56, 2, 57, 1))
sketch4.addConstraint(Sketcher.Constraint("Coincident", 57, 2, 58, 1))
sketch4.addConstraint(Sketcher.Constraint("Coincident", 58, 2, 59, 1))
sketch4.addConstraint(Sketcher.Constraint("Coincident", 59, 2, 56, 1))
sketch4.addConstraint(Sketcher.Constraint("Coincident", 60, 2, 61, 1))
sketch4.addConstraint(Sketcher.Constraint("Coincident", 61, 2, 62, 1))
sketch4.addConstraint(Sketcher.Constraint("Coincident", 62, 2, 63, 1))
sketch4.addConstraint(Sketcher.Constraint("Coincident", 63, 2, 60, 1))
sketch4.addConstraint(Sketcher.Constraint("Vertical", 0))
sketch4.addConstraint(Sketcher.Constraint("Horizontal", 1))
sketch4.addConstraint(Sketcher.Constraint("Vertical", 2))
sketch4.addConstraint(Sketcher.Constraint("Horizontal", 3))
sketch4.addConstraint(Sketcher.Constraint("Vertical", 4))
sketch4.addConstraint(Sketcher.Constraint("Horizontal", 5))
sketch4.addConstraint(Sketcher.Constraint("Vertical", 6))
sketch4.addConstraint(Sketcher.Constraint("Horizontal", 7))
sketch4.addConstraint(Sketcher.Constraint("Vertical", 8))
sketch4.addConstraint(Sketcher.Constraint("Horizontal", 9))
sketch4.addConstraint(Sketcher.Constraint("Vertical", 10))
sketch4.addConstraint(Sketcher.Constraint("Horizontal", 11))
sketch4.addConstraint(Sketcher.Constraint("Vertical", 12))
sketch4.addConstraint(Sketcher.Constraint("Horizontal", 13))
sketch4.addConstraint(Sketcher.Constraint("Vertical", 14))
sketch4.addConstraint(Sketcher.Constraint("Horizontal", 15))
sketch4.addConstraint(Sketcher.Constraint("Vertical", 16))
sketch4.addConstraint(Sketcher.Constraint("Horizontal", 17))
sketch4.addConstraint(Sketcher.Constraint("Vertical", 18))
sketch4.addConstraint(Sketcher.Constraint("Horizontal", 19))
sketch4.addConstraint(Sketcher.Constraint("Vertical", 20))
sketch4.addConstraint(Sketcher.Constraint("Horizontal", 21))
sketch4.addConstraint(Sketcher.Constraint("Vertical", 22))
sketch4.addConstraint(Sketcher.Constraint("Horizontal", 23))
sketch4.addConstraint(Sketcher.Constraint("Vertical", 24))
sketch4.addConstraint(Sketcher.Constraint("Horizontal", 25))
sketch4.addConstraint(Sketcher.Constraint("Vertical", 26))
sketch4.addConstraint(Sketcher.Constraint("Horizontal", 27))
sketch4.addConstraint(Sketcher.Constraint("Vertical", 28))
sketch4.addConstraint(Sketcher.Constraint("Horizontal", 29))
sketch4.addConstraint(Sketcher.Constraint("Vertical", 30))
sketch4.addConstraint(Sketcher.Constraint("Horizontal", 31))
sketch4.addConstraint(Sketcher.Constraint("Vertical", 32))
sketch4.addConstraint(Sketcher.Constraint("Horizontal", 33))
sketch4.addConstraint(Sketcher.Constraint("Vertical", 34))
sketch4.addConstraint(Sketcher.Constraint("Horizontal", 35))
sketch4.addConstraint(Sketcher.Constraint("Vertical", 36))
sketch4.addConstraint(Sketcher.Constraint("Horizontal", 37))
sketch4.addConstraint(Sketcher.Constraint("Vertical", 38))
sketch4.addConstraint(Sketcher.Constraint("Horizontal", 39))
sketch4.addConstraint(Sketcher.Constraint("Vertical", 40))
sketch4.addConstraint(Sketcher.Constraint("Horizontal", 41))
sketch4.addConstraint(Sketcher.Constraint("Vertical", 42))
sketch4.addConstraint(Sketcher.Constraint("Horizontal", 43))
sketch4.addConstraint(Sketcher.Constraint("Vertical", 44))
sketch4.addConstraint(Sketcher.Constraint("Horizontal", 45))
sketch4.addConstraint(Sketcher.Constraint("Vertical", 46))
sketch4.addConstraint(Sketcher.Constraint("Horizontal", 47))
sketch4.addConstraint(Sketcher.Constraint("Vertical", 48))
sketch4.addConstraint(Sketcher.Constraint("Horizontal", 49))
sketch4.addConstraint(Sketcher.Constraint("Vertical", 50))
sketch4.addConstraint(Sketcher.Constraint("Horizontal", 51))
sketch4.addConstraint(Sketcher.Constraint("Vertical", 52))
sketch4.addConstraint(Sketcher.Constraint("Horizontal", 53))
sketch4.addConstraint(Sketcher.Constraint("Vertical", 54))
sketch4.addConstraint(Sketcher.Constraint("Horizontal", 55))
sketch4.addConstraint(Sketcher.Constraint("Vertical", 56))
sketch4.addConstraint(Sketcher.Constraint("Horizontal", 57))
sketch4.addConstraint(Sketcher.Constraint("Vertical", 58))
sketch4.addConstraint(Sketcher.Constraint("Horizontal", 59))
sketch4.addConstraint(Sketcher.Constraint("Vertical", 60))
sketch4.addConstraint(Sketcher.Constraint("Horizontal", 61))
sketch4.addConstraint(Sketcher.Constraint("Vertical", 62))
sketch4.addConstraint(Sketcher.Constraint("Horizontal", 63))
sketch4.addConstraint(Sketcher.Constraint("Symmetric", 0, 2, 57, 2, -2))
sketch4.addConstraint(Sketcher.Constraint("Symmetric", 4, 2, 61, 2, -2))
sketch4.addConstraint(Sketcher.Constraint("Horizontal", 1, 2, 8, 2))
sketch4.addConstraint(Sketcher.Constraint("Horizontal", 3, 2, 10, 2))
sketch4.addConstraint(Sketcher.Constraint("Horizontal", 5, 2, 12, 2))
sketch4.addConstraint(Sketcher.Constraint("Horizontal", 7, 2, 14, 2))
sketch4.addConstraint(Sketcher.Constraint("Horizontal", 9, 2, 16, 2))
sketch4.addConstraint(Sketcher.Constraint("Horizontal", 11, 2, 18, 2))
sketch4.addConstraint(Sketcher.Constraint("Horizontal", 13, 2, 20, 2))
sketch4.addConstraint(Sketcher.Constraint("Horizontal", 15, 2, 22, 2))
sketch4.addConstraint(Sketcher.Constraint("Horizontal", 17, 2, 24, 2))
sketch4.addConstraint(Sketcher.Constraint("Horizontal", 19, 2, 26, 2))
sketch4.addConstraint(Sketcher.Constraint("Horizontal", 21, 2, 28, 2))
sketch4.addConstraint(Sketcher.Constraint("Horizontal", 23, 2, 30, 2))
sketch4.addConstraint(Sketcher.Constraint("Horizontal", 25, 2, 32, 2))
sketch4.addConstraint(Sketcher.Constraint("Horizontal", 27, 2, 34, 2))
sketch4.addConstraint(Sketcher.Constraint("Horizontal", 29, 2, 36, 2))
sketch4.addConstraint(Sketcher.Constraint("Horizontal", 31, 2, 38, 2))
sketch4.addConstraint(Sketcher.Constraint("Horizontal", 33, 2, 40, 2))
sketch4.addConstraint(Sketcher.Constraint("Horizontal", 35, 2, 42, 2))
sketch4.addConstraint(Sketcher.Constraint("Horizontal", 37, 2, 44, 2))
sketch4.addConstraint(Sketcher.Constraint("Horizontal", 39, 2, 46, 2))
sketch4.addConstraint(Sketcher.Constraint("Horizontal", 41, 2, 48, 2))
sketch4.addConstraint(Sketcher.Constraint("Horizontal", 43, 2, 50, 2))
sketch4.addConstraint(Sketcher.Constraint("Horizontal", 45, 2, 52, 2))
sketch4.addConstraint(Sketcher.Constraint("Horizontal", 47, 2, 54, 2))
sketch4.addConstraint(Sketcher.Constraint("Horizontal", 51, 2, 58, 2))
sketch4.addConstraint(Sketcher.Constraint("Horizontal", 55, 2, 62, 2))
sketch4.addConstraint(Sketcher.Constraint("Vertical", 3, 2, 4, 2))
sketch4.addConstraint(Sketcher.Constraint("Vertical", 2, 2, 5, 2))
sketch4.addConstraint(Sketcher.Constraint("Vertical", 11, 2, 12, 2))
sketch4.addConstraint(Sketcher.Constraint("Vertical", 10, 2, 13, 2))
sketch4.addConstraint(Sketcher.Constraint("Vertical", 19, 2, 20, 2))
sketch4.addConstraint(Sketcher.Constraint("Vertical", 18, 2, 21, 2))
sketch4.addConstraint(Sketcher.Constraint("Vertical", 27, 2, 28, 2))
sketch4.addConstraint(Sketcher.Constraint("Vertical", 26, 2, 29, 2))
sketch4.addConstraint(Sketcher.Constraint("Vertical", 35, 2, 36, 2))
sketch4.addConstraint(Sketcher.Constraint("Vertical", 34, 2, 37, 2))
sketch4.addConstraint(Sketcher.Constraint("Vertical", 43, 2, 44, 2))
sketch4.addConstraint(Sketcher.Constraint("Vertical", 42, 2, 45, 2))
sketch4.addConstraint(Sketcher.Constraint("Vertical", 51, 2, 52, 2))
sketch4.addConstraint(Sketcher.Constraint("Vertical", 50, 2, 53, 2))
sketch4.addConstraint(Sketcher.Constraint("Vertical", 59, 2, 60, 2))
sketch4.addConstraint(Sketcher.Constraint("Equal", 7, 9))
sketch4.addConstraint(Sketcher.Constraint("Equal", 15, 17))
sketch4.addConstraint(Sketcher.Constraint("Equal", 23, 25))
sketch4.addConstraint(Sketcher.Constraint("Equal", 31, 33))
sketch4.addConstraint(Sketcher.Constraint("Equal", 39, 41))
sketch4.addConstraint(Sketcher.Constraint("Equal", 47, 49))
sketch4.addConstraint(Sketcher.Constraint("Equal", 2, 4))
sketch4.addConstraint(Sketcher.Constraint("DistanceX", 0, 2, -1, 1, 40.0))
sketch4.addConstraint(Sketcher.Constraint("DistanceX", 57, 1, 57, 2, 5.31))
sketch4.addConstraint(Sketcher.Constraint("DistanceY", 0, 1, 0, 2, 5.45))
sketch4.addConstraint(Sketcher.Constraint("DistanceX", 1, 1, 1, 2, 5.334))
sketch4.addConstraint(Sketcher.Constraint("DistanceY", -1, 1, 0, 2, 19.09))
sketch4.addConstraint(Sketcher.Constraint("DistanceY", -1, 1, 4, 2, 8.18))
sketch4.addConstraint(Sketcher.Constraint("DistanceX", 8, 2, -1, 1, 29.33))
sketch4.addConstraint(Sketcher.Constraint("DistanceX", 16, 2, -1, 1, 18.66))
sketch4.addConstraint(Sketcher.Constraint("DistanceX", 24, 2, -1, 1, 7.99))
sketch4.addConstraint(Sketcher.Constraint("DistanceX", -1, 1, 32, 2, 2.68))
sketch4.addConstraint(Sketcher.Constraint("DistanceX", -1, 1, 40, 2, 13.35))
sketch4.addConstraint(Sketcher.Constraint("DistanceX", -1, 1, 48, 2, 24.02))
pocket2 = doc.addObject("PartDesign::Pocket", "Pocket001")
body.addObject(pocket2)
pocket2.Profile = sketch4
pocket2.Length = 5
pocket2.Reversed = True

sketch5 = doc.addObject("Sketcher::SketchObject", "Sketch004")
body.addObject(sketch5)
sketch5.AttachmentSupport = (doc.XZ_Plane, [""])
sketch5.MapMode = "FlatFace"
sketch5.AttachmentOffset = App.Placement(V(0, 0, -2), App.Rotation())
sketch5.addGeometry(Part.Circle(V(31.5, -9, 0), V(0, 0, 1), 1.6), False)
sketch5.addGeometry(Part.Circle(V(-5.5, -9, 0), V(0, 0, 1), 1.6), False)
sketch5.addGeometry(Part.Circle(V(-5.5, 28, 0), V(0, 0, 1), 1.6), False)
sketch5.addGeometry(Part.Circle(V(31.5, 28, 0), V(0, 0, 1), 1.6), False)
sketch5.addConstraint(Sketcher.Constraint("Equal", 0, 1))
sketch5.addConstraint(Sketcher.Constraint("Equal", 1, 2))
sketch5.addConstraint(Sketcher.Constraint("Equal", 2, 3))
sketch5.addConstraint(Sketcher.Constraint("Horizontal", 0, 3, 1, 3))
sketch5.addConstraint(Sketcher.Constraint("Horizontal", 2, 3, 3, 3))
sketch5.addConstraint(Sketcher.Constraint("Vertical", 1, 3, 2, 3))
sketch5.addConstraint(Sketcher.Constraint("Vertical", 0, 3, 3, 3))
sketch5.addConstraint(Sketcher.Constraint("Diameter", 0, 3.2))
sketch5.addConstraint(Sketcher.Constraint("DistanceY", 0, 3, -1, 1, 9.0))
sketch5.addConstraint(Sketcher.Constraint("DistanceY", -1, 1, 2, 3, 28.0))
sketch5.addConstraint(Sketcher.Constraint("DistanceX", 1, 3, 0, 3, 37.0))
sketch5.addConstraint(Sketcher.Constraint("DistanceX", -1, 1, 0, 3, 31.5))
pocket3 = doc.addObject("PartDesign::Pocket", "Pocket002")
body.addObject(pocket3)
pocket3.Profile = sketch5
pocket3.Length = 3
pocket3.Reversed = True

doc.recompute()
